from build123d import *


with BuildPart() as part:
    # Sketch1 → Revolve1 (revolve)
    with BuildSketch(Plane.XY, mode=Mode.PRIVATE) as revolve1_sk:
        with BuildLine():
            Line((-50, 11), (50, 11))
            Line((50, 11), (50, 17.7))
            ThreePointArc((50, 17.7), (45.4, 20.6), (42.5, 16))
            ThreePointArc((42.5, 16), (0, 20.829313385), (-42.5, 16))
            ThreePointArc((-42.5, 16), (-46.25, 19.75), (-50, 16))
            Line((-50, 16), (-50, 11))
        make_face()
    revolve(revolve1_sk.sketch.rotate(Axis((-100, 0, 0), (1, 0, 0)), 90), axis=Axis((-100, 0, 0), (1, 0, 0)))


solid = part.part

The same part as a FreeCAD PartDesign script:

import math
import FreeCAD as App
import Part
import Sketcher
from FreeCAD import Vector
Q = App.Units.Quantity

doc = App.newDocument("Part")
body = doc.addObject("PartDesign::Body", "Body")

sketch1 = body.newObject("Sketcher::SketchObject", "Sketch")
sketch1.AttachmentSupport = (doc.getObject("XY_Plane"), [""])
sketch1.MapMode = "FlatFace"
sketch1.addGeometry(Part.LineSegment(Vector(-50, 11, 0), Vector(50, 11, 0)), False)
sketch1.addGeometry(Part.LineSegment(Vector(50, 11, 0), Vector(50, 17.7, 0)), False)
sketch1.addGeometry(Part.ArcOfCircle(Part.Circle(Vector(46.25, 16.85, 0), Vector(0, 0, 1), 3.845127), math.radians(12.771243), math.radians(192.771243)), False)
sketch1.addGeometry(Part.ArcOfCircle(Part.Circle(Vector(0, -168.594329, 0), Vector(0, 0, 1), 189.423643), math.radians(77.03447), math.radians(102.96553)), False)
sketch1.addGeometry(Part.ArcOfCircle(Part.Circle(Vector(-46.25, 16, 0), Vector(0, 0, 1), 3.75), math.radians(0), math.radians(180)), False)
sketch1.addGeometry(Part.LineSegment(Vector(-50, 16, 0), Vector(-50, 11, 0)), False)
sketch1.addConstraint(Sketcher.Constraint("Coincident", 0, 2, 1, 1))
sketch1.addConstraint(Sketcher.Constraint("Coincident", 1, 2, 2, 1))
sketch1.addConstraint(Sketcher.Constraint("Coincident", 2, 2, 3, 1))
sketch1.addConstraint(Sketcher.Constraint("Coincident", 3, 2, 4, 1))
sketch1.addConstraint(Sketcher.Constraint("Tangent", 4, 2, 5, 1))
sketch1.addConstraint(Sketcher.Constraint("Coincident", 5, 2, 0, 1))
sketch1.addConstraint(Sketcher.Constraint("Horizontal", 0))
sketch1.addConstraint(Sketcher.Constraint("Vertical", 1))
sketch1.addConstraint(Sketcher.Constraint("Vertical", 5))
sketch1.addConstraint(Sketcher.Constraint("Symmetric", 2, 2, 3, 2, -2))
sketch1.addConstraint(Sketcher.Constraint("Horizontal", 4, 3, 2, 2))
sketch1.addConstraint(Sketcher.Constraint("DistanceX", 0, 1, 0, 2, Q("100 mm")))
sketch1.addConstraint(Sketcher.Constraint("DistanceY", 5, 2, 5, 1, Q("5 mm")))
sketch1.addConstraint(Sketcher.Constraint("Radius", 4, Q("3.75 mm")))
sketch1.addConstraint(Sketcher.Constraint("DistanceY", 1, 1, 1, 2, Q("6.7 mm")))
sketch1.addConstraint(Sketcher.Constraint("DistanceY", -1, 1, 4, 3, Q("16 mm")))
sketch1.addConstraint(Sketcher.Constraint("DistanceX", -1, 1, 0, 2, Q("50 mm")))
sketch1.addConstraint(Sketcher.Constraint("DistanceX", 4, 3, 2, 3, Q("92.5 mm")))
sketch1.addConstraint(Sketcher.Constraint("Radius", 3, Q("189.423643 mm")))
revolution = body.newObject("PartDesign::Revolution", "Revolution")
revolution.Profile = sketch1
revolution.ReferenceAxis = (sketch1, ["H_Axis"])
revolution.Angle = 360

doc.recompute()
